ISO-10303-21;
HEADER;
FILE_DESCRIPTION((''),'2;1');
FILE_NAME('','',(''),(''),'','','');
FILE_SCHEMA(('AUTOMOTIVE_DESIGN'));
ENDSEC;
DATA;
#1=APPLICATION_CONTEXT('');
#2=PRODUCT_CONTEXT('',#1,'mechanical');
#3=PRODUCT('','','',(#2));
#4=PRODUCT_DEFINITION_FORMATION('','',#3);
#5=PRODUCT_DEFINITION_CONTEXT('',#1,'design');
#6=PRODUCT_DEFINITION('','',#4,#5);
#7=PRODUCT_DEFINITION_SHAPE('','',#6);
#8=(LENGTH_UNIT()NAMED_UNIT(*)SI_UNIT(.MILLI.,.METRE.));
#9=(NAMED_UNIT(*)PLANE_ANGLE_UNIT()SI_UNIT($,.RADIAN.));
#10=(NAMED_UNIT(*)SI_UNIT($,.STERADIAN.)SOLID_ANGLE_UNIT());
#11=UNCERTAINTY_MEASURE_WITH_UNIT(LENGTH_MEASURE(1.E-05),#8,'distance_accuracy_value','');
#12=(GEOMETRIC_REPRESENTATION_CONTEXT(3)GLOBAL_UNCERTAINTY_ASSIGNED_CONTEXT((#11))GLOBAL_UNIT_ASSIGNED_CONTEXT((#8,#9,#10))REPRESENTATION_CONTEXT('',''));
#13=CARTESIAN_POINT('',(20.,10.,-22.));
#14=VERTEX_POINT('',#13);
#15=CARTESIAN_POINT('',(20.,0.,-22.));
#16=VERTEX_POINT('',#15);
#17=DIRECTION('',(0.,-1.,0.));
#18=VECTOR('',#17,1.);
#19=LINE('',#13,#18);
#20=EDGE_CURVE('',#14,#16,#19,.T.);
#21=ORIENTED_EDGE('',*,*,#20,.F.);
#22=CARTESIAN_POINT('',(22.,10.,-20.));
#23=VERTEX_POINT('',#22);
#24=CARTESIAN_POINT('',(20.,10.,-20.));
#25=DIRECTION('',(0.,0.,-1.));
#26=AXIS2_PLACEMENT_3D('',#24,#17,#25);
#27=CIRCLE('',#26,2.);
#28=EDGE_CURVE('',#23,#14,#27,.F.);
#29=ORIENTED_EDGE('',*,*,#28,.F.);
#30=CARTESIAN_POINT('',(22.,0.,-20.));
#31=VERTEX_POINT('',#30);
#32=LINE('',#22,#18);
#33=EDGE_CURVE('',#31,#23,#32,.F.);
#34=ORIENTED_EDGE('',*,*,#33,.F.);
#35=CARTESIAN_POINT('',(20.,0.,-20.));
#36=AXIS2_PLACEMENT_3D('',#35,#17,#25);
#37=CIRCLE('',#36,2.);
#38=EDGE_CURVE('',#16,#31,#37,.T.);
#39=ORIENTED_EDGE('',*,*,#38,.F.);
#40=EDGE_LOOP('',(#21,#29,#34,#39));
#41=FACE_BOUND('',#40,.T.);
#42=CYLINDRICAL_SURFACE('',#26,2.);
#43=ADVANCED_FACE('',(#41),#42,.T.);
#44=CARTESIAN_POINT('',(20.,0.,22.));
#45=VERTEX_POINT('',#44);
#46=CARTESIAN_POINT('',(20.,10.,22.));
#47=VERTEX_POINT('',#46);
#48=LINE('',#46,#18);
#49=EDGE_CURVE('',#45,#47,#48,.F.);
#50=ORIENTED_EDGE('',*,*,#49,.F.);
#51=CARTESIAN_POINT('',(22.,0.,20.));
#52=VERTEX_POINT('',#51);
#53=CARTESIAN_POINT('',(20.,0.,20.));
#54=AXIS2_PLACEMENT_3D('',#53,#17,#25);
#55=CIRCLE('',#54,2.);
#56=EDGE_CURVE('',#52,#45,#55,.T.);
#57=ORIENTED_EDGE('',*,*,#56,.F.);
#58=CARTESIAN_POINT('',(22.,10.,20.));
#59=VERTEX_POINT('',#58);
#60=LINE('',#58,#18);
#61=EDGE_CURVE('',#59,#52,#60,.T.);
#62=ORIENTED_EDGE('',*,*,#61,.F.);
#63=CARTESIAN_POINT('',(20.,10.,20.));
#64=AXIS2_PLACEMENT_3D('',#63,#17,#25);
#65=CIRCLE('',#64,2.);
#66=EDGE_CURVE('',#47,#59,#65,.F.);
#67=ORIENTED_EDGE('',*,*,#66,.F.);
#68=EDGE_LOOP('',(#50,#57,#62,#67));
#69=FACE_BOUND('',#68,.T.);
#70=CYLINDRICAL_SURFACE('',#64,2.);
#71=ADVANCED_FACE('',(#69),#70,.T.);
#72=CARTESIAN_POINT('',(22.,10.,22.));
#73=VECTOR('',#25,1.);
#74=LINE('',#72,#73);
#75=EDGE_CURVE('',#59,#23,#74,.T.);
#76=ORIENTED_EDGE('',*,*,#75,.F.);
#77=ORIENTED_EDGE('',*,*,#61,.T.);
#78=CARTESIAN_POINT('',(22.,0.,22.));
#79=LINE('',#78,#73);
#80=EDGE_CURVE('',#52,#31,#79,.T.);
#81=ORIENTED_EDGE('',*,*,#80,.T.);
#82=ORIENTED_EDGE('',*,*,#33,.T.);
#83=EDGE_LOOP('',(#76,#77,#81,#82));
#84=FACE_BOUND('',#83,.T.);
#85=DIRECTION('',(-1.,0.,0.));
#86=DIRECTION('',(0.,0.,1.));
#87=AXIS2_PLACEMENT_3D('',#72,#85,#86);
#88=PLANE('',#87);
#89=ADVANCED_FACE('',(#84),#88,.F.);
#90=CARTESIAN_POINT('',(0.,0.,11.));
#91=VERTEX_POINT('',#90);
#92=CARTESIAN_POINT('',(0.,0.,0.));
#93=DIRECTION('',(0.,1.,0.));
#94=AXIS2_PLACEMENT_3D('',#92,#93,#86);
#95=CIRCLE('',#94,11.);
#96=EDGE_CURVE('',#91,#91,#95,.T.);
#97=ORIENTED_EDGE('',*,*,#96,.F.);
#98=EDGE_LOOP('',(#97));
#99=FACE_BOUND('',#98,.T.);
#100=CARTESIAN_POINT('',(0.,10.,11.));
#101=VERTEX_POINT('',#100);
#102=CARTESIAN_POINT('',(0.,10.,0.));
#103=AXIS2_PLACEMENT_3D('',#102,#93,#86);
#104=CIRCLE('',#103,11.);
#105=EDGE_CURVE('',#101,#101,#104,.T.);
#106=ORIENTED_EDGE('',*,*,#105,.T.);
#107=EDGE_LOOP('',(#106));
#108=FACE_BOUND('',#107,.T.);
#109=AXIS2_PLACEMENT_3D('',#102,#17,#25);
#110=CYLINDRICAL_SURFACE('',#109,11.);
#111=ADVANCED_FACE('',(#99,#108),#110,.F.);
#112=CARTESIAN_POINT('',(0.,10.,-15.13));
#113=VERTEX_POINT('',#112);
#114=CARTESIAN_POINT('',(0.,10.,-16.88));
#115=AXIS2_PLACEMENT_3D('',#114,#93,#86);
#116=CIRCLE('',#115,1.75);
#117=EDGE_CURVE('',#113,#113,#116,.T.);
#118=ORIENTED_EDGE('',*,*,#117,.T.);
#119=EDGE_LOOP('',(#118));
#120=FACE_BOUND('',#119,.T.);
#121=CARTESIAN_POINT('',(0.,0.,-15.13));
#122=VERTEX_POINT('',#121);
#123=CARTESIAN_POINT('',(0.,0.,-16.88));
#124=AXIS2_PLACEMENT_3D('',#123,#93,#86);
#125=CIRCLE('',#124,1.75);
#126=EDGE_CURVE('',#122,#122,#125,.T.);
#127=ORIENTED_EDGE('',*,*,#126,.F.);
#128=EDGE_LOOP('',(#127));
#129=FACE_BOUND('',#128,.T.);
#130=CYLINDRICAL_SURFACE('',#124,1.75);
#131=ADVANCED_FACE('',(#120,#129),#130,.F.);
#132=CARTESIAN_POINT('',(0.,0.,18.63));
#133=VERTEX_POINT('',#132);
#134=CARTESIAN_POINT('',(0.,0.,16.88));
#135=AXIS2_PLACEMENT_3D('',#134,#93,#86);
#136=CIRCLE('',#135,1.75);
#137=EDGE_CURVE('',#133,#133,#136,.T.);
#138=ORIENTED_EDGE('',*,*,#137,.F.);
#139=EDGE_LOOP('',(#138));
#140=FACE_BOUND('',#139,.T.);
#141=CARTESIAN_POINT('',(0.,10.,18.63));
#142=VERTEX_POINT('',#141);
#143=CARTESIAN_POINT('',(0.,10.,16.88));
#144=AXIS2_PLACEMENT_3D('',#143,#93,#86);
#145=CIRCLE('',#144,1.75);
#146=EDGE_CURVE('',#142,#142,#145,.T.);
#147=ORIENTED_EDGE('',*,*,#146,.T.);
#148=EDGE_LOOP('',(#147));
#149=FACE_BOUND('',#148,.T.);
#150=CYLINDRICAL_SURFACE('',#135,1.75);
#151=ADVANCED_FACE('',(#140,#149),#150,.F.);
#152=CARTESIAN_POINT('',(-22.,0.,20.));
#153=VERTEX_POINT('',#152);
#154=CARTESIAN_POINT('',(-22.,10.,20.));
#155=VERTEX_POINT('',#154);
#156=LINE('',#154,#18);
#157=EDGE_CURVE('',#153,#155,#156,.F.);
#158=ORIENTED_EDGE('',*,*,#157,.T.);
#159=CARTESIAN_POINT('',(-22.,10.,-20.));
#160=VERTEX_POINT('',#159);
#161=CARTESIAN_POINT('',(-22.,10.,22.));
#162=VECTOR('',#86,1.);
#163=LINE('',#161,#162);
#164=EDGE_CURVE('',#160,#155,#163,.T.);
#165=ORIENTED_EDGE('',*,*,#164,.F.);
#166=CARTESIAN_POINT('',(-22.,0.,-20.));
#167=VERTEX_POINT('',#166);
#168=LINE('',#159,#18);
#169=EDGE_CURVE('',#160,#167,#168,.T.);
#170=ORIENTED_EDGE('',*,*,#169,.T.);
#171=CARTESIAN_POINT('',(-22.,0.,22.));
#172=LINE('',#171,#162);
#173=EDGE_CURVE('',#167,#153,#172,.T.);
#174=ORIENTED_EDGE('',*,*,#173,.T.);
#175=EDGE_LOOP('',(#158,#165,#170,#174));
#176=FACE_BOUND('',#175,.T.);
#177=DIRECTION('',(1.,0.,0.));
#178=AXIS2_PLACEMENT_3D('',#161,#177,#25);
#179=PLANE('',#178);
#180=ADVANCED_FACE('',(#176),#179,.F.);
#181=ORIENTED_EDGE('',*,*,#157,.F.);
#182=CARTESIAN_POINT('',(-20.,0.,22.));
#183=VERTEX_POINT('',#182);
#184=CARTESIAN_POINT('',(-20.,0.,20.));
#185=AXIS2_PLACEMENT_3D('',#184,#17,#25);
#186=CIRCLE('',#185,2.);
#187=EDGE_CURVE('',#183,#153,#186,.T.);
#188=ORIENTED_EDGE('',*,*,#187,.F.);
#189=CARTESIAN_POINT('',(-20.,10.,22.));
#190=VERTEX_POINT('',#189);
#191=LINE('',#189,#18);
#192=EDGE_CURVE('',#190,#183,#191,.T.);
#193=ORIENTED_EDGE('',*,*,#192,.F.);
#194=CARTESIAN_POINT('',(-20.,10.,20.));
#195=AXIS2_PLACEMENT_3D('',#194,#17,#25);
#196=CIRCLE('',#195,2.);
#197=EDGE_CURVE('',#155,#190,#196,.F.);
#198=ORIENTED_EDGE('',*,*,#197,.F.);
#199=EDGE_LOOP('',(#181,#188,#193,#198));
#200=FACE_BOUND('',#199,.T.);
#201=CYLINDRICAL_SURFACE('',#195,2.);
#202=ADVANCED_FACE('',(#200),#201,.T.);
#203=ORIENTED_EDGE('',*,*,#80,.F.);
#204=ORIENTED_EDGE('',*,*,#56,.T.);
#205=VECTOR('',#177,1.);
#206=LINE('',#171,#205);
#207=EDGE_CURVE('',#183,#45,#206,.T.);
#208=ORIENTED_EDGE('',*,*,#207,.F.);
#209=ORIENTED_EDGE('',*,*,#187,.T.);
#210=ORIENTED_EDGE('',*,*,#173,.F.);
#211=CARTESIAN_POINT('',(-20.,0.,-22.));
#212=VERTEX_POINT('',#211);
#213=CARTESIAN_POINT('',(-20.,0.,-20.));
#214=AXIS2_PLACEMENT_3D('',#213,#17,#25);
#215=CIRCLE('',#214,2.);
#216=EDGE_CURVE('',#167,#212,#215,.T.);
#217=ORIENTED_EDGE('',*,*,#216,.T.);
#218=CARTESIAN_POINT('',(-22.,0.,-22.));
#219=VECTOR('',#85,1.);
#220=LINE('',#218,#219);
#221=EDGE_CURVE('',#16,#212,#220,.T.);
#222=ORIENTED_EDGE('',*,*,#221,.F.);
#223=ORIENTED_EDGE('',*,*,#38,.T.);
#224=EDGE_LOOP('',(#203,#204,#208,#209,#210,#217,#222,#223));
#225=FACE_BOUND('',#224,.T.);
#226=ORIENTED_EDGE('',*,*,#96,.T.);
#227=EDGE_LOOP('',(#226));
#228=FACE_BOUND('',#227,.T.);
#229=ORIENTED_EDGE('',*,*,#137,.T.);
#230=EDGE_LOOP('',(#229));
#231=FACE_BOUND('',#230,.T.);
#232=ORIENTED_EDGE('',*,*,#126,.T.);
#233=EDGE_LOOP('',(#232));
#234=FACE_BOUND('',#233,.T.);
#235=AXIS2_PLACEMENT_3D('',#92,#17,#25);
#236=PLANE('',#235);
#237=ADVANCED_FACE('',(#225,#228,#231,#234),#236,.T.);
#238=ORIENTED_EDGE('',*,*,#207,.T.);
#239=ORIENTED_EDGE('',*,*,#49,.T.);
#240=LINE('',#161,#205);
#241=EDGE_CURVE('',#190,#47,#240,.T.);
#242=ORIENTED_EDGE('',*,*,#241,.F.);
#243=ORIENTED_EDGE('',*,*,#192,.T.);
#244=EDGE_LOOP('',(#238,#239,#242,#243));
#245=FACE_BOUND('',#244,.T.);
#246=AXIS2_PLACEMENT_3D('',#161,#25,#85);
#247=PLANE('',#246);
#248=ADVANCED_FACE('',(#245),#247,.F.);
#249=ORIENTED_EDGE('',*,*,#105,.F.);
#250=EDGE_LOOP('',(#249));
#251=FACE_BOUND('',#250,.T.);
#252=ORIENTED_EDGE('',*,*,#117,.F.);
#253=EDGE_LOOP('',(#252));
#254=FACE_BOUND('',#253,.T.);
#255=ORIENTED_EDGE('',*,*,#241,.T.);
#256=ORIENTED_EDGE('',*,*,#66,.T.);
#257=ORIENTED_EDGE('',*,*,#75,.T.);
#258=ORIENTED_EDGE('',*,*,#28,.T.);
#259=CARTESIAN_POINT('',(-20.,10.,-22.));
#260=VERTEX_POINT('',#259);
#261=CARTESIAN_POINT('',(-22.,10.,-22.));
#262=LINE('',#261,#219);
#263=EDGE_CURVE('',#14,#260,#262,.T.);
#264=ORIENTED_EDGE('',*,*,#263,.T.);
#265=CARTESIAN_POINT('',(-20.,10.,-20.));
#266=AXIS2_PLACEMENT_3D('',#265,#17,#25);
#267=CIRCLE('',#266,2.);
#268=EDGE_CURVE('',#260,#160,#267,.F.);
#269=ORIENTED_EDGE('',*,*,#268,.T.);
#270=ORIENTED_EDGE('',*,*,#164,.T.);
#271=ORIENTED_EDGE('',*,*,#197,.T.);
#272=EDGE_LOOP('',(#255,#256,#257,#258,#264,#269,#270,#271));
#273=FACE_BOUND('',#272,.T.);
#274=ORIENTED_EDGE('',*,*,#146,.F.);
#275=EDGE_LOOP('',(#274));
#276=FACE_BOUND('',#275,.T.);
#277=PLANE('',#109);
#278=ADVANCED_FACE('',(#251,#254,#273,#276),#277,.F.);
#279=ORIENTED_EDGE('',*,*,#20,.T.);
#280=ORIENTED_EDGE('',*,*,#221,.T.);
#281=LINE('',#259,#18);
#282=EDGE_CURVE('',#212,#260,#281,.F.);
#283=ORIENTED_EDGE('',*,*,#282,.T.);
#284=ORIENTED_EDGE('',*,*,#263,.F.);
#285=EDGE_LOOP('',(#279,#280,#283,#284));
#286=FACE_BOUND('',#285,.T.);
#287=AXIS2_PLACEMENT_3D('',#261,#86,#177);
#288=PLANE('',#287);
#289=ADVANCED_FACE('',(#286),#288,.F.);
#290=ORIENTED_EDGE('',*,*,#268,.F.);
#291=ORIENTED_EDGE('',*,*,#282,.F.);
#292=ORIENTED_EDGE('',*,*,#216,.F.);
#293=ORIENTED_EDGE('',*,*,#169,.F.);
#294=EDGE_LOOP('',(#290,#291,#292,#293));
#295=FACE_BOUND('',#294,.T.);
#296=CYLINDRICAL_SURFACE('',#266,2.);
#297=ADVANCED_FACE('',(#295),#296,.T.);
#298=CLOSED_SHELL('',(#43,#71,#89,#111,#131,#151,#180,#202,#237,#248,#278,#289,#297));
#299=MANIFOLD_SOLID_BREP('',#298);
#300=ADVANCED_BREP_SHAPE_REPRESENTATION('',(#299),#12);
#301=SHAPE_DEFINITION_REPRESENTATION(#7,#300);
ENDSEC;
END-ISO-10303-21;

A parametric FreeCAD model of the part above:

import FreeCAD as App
import Part
import Sketcher


def edges_at(feature, points):
    """Names of the edges that pass closest to the given points."""
    edges = feature.Shape.Edges
    near = lambda p: min(range(len(edges)), key=lambda i: edges[i].distToShape(Part.Vertex(*p))[0])
    return sorted({f"Edge{near(p) + 1}" for p in points})

doc = App.newDocument("Part")
params = doc.addObject("Spreadsheet::Sheet", "Params")
for row, (alias, value) in enumerate([
    ("sketch1_diameter", "22 mm"),
    ("sketch1_width", "44 mm"),
    ("pad1_length", "10 mm"),
    ("sketch2_diameter", "3.5 mm"),
    ("fillet_radius", "2 mm"),
], start=1):
    params.set(f"A{row}", alias)
    params.set(f"B{row}", "=" + value)
    params.setAlias(f"B{row}", alias)

body = doc.addObject("PartDesign::Body", "Body")

# Sketch on XZ plane
sketch1 = body.newObject("Sketcher::SketchObject", "Sketch")
sketch1.AttachmentSupport = (doc.getObject("XZ_Plane"), [""])
sketch1.MapMode = "FlatFace"
sketch1.addGeometry(Part.LineSegment(App.Vector(-22, -22, 0), App.Vector(-22, 22, 0)), False)
sketch1.addGeometry(Part.LineSegment(App.Vector(-22, 22, 0), App.Vector(22, 22, 0)), False)
sketch1.addGeometry(Part.LineSegment(App.Vector(22, 22, 0), App.Vector(22, -22, 0)), False)
sketch1.addGeometry(Part.LineSegment(App.Vector(22, -22, 0), App.Vector(-22, -22, 0)), False)
sketch1.addGeometry(Part.Circle(App.Vector(0, 0, 0), App.Vector(0, 0, 1), 11), False)
sketch1.addConstraint(Sketcher.Constraint("Coincident", 0, 2, 1, 1))
sketch1.addConstraint(Sketcher.Constraint("Coincident", 1, 2, 2, 1))
sketch1.addConstraint(Sketcher.Constraint("Coincident", 2, 2, 3, 1))
sketch1.addConstraint(Sketcher.Constraint("Coincident", 3, 2, 0, 1))
sketch1.addConstraint(Sketcher.Constraint("Vertical", 0))
sketch1.addConstraint(Sketcher.Constraint("Horizontal", 1))
sketch1.addConstraint(Sketcher.Constraint("Vertical", 2))
sketch1.addConstraint(Sketcher.Constraint("Horizontal", 3))
sketch1.addConstraint(Sketcher.Constraint("Coincident", 4, 3, -1, 1))
sketch1.addConstraint(Sketcher.Constraint("Symmetric", 0, 2, 2, 2, -1, 1))
sketch1.addConstraint(Sketcher.Constraint("Equal", 3, 0))
sketch1.addConstraint(Sketcher.Constraint("Diameter", 4, 22.0))
sketch1.addConstraint(Sketcher.Constraint("DistanceX", 1, 1, 1, 2, 44.0))
sketch1.setExpression("Constraints[11]", "Params.sketch1_diameter")
sketch1.setExpression("Constraints[12]", "Params.sketch1_width")
pad1 = body.newObject("PartDesign::Pad", "Pad")
pad1.Profile = sketch1
pad1.setExpression("Length", "Params.pad1_length")
pad1.Reversed = True

# Sketch on XZ plane
sketch2 = body.newObject("Sketcher::SketchObject", "Sketch001")
sketch2.AttachmentSupport = (doc.getObject("XZ_Plane"), [""])
sketch2.MapMode = "FlatFace"
sketch2.AttachmentOffset = App.Placement(App.Vector(0, 0, -10), App.Rotation())
sketch2.addGeometry(Part.Circle(App.Vector(0, -16.9, 0), App.Vector(0, 0, 1), 1.8), False)
sketch2.addGeometry(Part.Circle(App.Vector(0, 16.9, 0), App.Vector(0, 0, 1), 1.8), False)
sketch2.addConstraint(Sketcher.Constraint("Equal", 0, 1))
sketch2.addConstraint(Sketcher.Constraint("Symmetric", 0, 3, 1, 3, -1, 1))
sketch2.addConstraint(Sketcher.Constraint("PointOnObject", 0, 3, -2))
sketch2.addConstraint(Sketcher.Constraint("Diameter", 0, 3.5))
sketch2.addConstraint(Sketcher.Constraint("DistanceY", 0, 3, -1, 1, 16.88))
sketch2.setExpression("Constraints[3]", "Params.sketch2_diameter")
pocket1 = body.newObject("PartDesign::Pocket", "Pocket")
pocket1.Profile = sketch2
pocket1.Type = "ThroughAll"
pocket1.Reversed = True
doc.recompute()

fillet = body.newObject("PartDesign::Fillet", "Fillet")
fillet.Base = (pocket1, edges_at(pocket1, [
    (22, 5, 22),
    (-22, 5, 22),
    (-22, 5, -22),
    (22, 5, -22),
]))
fillet.setExpression("Radius", "Params.fillet_radius")

doc.recompute()
